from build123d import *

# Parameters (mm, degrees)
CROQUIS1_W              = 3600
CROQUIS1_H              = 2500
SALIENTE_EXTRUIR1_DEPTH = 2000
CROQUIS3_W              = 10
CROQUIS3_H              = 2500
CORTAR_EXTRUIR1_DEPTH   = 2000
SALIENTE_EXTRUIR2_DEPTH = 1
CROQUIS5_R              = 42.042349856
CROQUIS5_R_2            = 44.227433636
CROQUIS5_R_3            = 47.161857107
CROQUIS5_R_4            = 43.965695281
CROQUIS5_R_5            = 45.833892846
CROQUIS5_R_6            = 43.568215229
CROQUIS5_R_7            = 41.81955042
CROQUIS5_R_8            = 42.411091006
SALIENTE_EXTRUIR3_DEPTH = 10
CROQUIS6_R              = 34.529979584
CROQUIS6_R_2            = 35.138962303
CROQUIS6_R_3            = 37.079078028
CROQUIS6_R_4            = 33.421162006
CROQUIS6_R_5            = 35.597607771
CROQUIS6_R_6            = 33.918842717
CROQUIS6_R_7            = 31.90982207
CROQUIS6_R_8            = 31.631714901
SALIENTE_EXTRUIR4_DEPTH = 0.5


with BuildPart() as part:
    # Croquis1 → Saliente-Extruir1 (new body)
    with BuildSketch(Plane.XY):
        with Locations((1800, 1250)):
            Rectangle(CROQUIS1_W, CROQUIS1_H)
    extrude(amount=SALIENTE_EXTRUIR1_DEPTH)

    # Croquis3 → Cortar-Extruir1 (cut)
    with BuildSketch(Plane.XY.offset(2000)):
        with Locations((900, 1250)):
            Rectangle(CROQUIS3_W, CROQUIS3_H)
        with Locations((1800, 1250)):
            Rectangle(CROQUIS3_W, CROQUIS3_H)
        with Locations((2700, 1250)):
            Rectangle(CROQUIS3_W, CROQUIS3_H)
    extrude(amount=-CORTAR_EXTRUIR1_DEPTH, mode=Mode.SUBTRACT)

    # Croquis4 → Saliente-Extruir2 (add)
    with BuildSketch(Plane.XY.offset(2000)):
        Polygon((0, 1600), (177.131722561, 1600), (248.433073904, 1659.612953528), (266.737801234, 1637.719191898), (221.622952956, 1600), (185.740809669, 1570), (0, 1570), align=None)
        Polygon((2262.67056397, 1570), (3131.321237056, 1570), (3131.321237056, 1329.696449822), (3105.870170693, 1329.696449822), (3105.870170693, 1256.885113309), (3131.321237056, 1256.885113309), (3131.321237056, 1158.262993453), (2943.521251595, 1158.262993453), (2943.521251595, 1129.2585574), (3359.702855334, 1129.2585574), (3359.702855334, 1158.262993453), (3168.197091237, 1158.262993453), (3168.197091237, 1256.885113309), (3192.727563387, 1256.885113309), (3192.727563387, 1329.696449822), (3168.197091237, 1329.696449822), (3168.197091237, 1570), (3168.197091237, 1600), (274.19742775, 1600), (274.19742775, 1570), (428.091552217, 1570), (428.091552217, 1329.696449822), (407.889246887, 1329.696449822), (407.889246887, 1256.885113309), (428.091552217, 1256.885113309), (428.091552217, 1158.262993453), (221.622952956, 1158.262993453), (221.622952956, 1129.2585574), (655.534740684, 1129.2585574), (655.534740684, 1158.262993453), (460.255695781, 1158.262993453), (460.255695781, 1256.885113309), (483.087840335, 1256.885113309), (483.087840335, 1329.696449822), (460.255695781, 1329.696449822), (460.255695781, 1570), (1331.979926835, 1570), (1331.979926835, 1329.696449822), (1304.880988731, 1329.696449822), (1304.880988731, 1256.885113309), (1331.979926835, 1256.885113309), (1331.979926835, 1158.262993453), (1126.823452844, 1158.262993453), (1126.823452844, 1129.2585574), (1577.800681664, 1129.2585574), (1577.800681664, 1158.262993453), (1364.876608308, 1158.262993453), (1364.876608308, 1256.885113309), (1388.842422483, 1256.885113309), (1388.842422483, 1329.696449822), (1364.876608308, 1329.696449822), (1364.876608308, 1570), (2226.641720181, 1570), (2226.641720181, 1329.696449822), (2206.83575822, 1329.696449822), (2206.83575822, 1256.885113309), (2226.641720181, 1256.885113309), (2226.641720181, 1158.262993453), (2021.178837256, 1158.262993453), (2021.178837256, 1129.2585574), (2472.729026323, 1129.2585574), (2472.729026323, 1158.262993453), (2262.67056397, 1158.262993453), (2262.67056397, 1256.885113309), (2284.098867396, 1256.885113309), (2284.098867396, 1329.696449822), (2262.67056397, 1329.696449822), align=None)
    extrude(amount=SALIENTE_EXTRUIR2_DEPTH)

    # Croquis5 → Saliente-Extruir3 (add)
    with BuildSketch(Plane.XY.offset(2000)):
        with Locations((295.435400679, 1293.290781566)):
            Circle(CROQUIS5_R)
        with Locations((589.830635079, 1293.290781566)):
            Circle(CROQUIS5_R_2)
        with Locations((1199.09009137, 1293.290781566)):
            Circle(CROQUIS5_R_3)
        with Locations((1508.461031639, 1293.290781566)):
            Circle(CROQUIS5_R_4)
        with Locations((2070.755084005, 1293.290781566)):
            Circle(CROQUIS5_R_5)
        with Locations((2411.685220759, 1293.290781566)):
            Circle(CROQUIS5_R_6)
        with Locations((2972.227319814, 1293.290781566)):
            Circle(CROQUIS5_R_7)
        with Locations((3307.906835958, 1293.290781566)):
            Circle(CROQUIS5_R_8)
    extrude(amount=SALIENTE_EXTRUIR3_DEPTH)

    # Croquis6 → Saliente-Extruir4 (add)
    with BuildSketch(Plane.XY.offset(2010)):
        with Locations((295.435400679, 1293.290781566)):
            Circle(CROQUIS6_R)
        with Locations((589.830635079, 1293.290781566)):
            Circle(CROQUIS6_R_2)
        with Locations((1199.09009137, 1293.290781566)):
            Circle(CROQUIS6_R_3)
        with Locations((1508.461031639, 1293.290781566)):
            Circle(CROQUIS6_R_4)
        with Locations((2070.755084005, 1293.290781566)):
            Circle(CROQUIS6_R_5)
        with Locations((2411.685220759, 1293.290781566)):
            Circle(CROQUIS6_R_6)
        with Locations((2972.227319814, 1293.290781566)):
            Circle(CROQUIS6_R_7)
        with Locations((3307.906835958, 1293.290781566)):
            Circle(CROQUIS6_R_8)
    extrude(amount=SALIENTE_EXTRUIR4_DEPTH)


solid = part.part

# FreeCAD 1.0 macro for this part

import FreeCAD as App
import Part
import Sketcher
from FreeCAD import Vector
Q = App.Units.Quantity


def add_polygon(sketch, points):
    """Adds a closed chain of lines whose ends are joined by coincident constraints."""
    first, n = sketch.GeometryCount, len(points)
    for a, b in zip(points, points[1:] + points[:1]):
        sketch.addGeometry(Part.LineSegment(App.Vector(*a, 0), App.Vector(*b, 0)), False)
    for i in range(n):
        sketch.addConstraint(Sketcher.Constraint("Coincident", first + i, 2, first + (i + 1) % n, 1))

doc = App.newDocument("Part")
body = doc.addObject("PartDesign::Body", "Body")
body.AllowCompound = True

sketch1 = body.newObject("Sketcher::SketchObject", "Sketch")
sketch1.AttachmentSupport = (doc.getObject("XY_Plane"), [""])
sketch1.MapMode = "FlatFace"
add_polygon(sketch1, [(0, 2500), (0, 0), (3600, 0), (3600, 2500)])
sketch1.addConstraint(Sketcher.Constraint("Vertical", 0))
sketch1.addConstraint(Sketcher.Constraint("Horizontal", 1))
sketch1.addConstraint(Sketcher.Constraint("Vertical", 2))
sketch1.addConstraint(Sketcher.Constraint("Horizontal", 3))
sketch1.addConstraint(Sketcher.Constraint("Coincident", 0, 2, -1, 1))
sketch1.addConstraint(Sketcher.Constraint("DistanceX", 1, 1, 1, 2, Q("3600 mm")))
sketch1.addConstraint(Sketcher.Constraint("DistanceY", 0, 2, 0, 1, Q("2500 mm")))
pad1 = body.newObject("PartDesign::Pad", "Pad")
pad1.Profile = sketch1
pad1.Length = 2000

sketch2 = body.newObject("Sketcher::SketchObject", "Sketch001")
sketch2.AttachmentSupport = (doc.getObject("XY_Plane"), [""])
sketch2.MapMode = "FlatFace"
sketch2.AttachmentOffset = App.Placement(Vector(0, 0, 2000), App.Rotation())
add_polygon(sketch2, [(895, 2500), (895, 0), (905, 0), (905, 2500)])
add_polygon(sketch2, [(1795, 2500), (1795, 0), (1805, 0), (1805, 2500)])
add_polygon(sketch2, [(2695, 2500), (2695, 0), (2705, 0), (2705, 2500)])
sketch2.addConstraint(Sketcher.Constraint("Vertical", 0))
sketch2.addConstraint(Sketcher.Constraint("Horizontal", 1))
sketch2.addConstraint(Sketcher.Constraint("Vertical", 2))
sketch2.addConstraint(Sketcher.Constraint("Horizontal", 3))
sketch2.addConstraint(Sketcher.Constraint("Vertical", 4))
sketch2.addConstraint(Sketcher.Constraint("Horizontal", 5))
sketch2.addConstraint(Sketcher.Constraint("Vertical", 6))
sketch2.addConstraint(Sketcher.Constraint("Horizontal", 7))
sketch2.addConstraint(Sketcher.Constraint("Vertical", 8))
sketch2.addConstraint(Sketcher.Constraint("Horizontal", 9))
sketch2.addConstraint(Sketcher.Constraint("Vertical", 10))
sketch2.addConstraint(Sketcher.Constraint("Horizontal", 11))
sketch2.addConstraint(Sketcher.Constraint("PointOnObject", 0, 2, -1))
sketch2.addConstraint(Sketcher.Constraint("PointOnObject", 4, 2, -1))
sketch2.addConstraint(Sketcher.Constraint("PointOnObject", 8, 2, -1))
sketch2.addConstraint(Sketcher.Constraint("Horizontal", 3, 2, 6, 2))
sketch2.addConstraint(Sketcher.Constraint("Horizontal", 7, 2, 10, 2))
sketch2.addConstraint(Sketcher.Constraint("Equal", 3, 5))
sketch2.addConstraint(Sketcher.Constraint("Equal", 7, 9))
sketch2.addConstraint(Sketcher.Constraint("DistanceX", 1, 1, 1, 2, Q("10 mm")))
sketch2.addConstraint(Sketcher.Constraint("DistanceY", 0, 2, 0, 1, Q("2500 mm")))
sketch2.addConstraint(Sketcher.Constraint("DistanceX", -1, 1, 0, 2, Q("895 mm")))
sketch2.addConstraint(Sketcher.Constraint("DistanceX", -1, 1, 4, 2, Q("1795 mm")))
sketch2.addConstraint(Sketcher.Constraint("DistanceX", -1, 1, 8, 2, Q("2695 mm")))
pocket1 = body.newObject("PartDesign::Pocket", "Pocket")
pocket1.Profile = sketch2
pocket1.Length = 2000

sketch3 = body.newObject("Sketcher::SketchObject", "Sketch002")
sketch3.AttachmentSupport = (doc.getObject("XY_Plane"), [""])
sketch3.MapMode = "FlatFace"
sketch3.AttachmentOffset = App.Placement(Vector(0, 0, 2000), App.Rotation())
add_polygon(sketch3, [(177, 1600), (0, 1600), (0, 1570), (186, 1570), (222, 1600), (267, 1638), (248, 1660)])
add_polygon(sketch3, [(2263, 1570), (3131, 1570), (3131, 1330), (3106, 1330), (3106, 1257), (3131, 1257), (3131, 1158), (2944, 1158), (2944, 1129), (3360, 1129), (3360, 1158), (3168, 1158), (3168, 1257), (3193, 1257), (3193, 1330), (3168, 1330), (3168, 1600), (274, 1600), (274, 1570), (428, 1570), (428, 1330), (408, 1330), (408, 1257), (428, 1257), (428, 1158), (222, 1158), (222, 1129), (656, 1129), (656, 1158), (460, 1158), (460, 1257), (483, 1257), (483, 1330), (460, 1330), (460, 1570), (1332, 1570), (1332, 1330), (1305, 1330), (1305, 1257), (1332, 1257), (1332, 1158), (1127, 1158), (1127, 1129), (1578, 1129), (1578, 1158), (1365, 1158), (1365, 1257), (1389, 1257), (1389, 1330), (1365, 1330), (1365, 1570), (2227, 1570), (2227, 1330), (2207, 1330), (2207, 1257), (2227, 1257), (2227, 1158), (2021, 1158), (2021, 1129), (2473, 1129), (2473, 1158), (2263, 1158), (2263, 1257), (2284, 1257), (2284, 1330), (2263, 1330)])
sketch3.addConstraint(Sketcher.Constraint("Horizontal", 0))
sketch3.addConstraint(Sketcher.Constraint("Vertical", 1))
sketch3.addConstraint(Sketcher.Constraint("Horizontal", 2))
sketch3.addConstraint(Sketcher.Constraint("Horizontal", 7))
sketch3.addConstraint(Sketcher.Constraint("Vertical", 8))
sketch3.addConstraint(Sketcher.Constraint("Horizontal", 9))
sketch3.addConstraint(Sketcher.Constraint("Vertical", 10))
sketch3.addConstraint(Sketcher.Constraint("Horizontal", 11))
sketch3.addConstraint(Sketcher.Constraint("Vertical", 12))
sketch3.addConstraint(Sketcher.Constraint("Horizontal", 13))
sketch3.addConstraint(Sketcher.Constraint("Vertical", 14))
sketch3.addConstraint(Sketcher.Constraint("Horizontal", 15))
sketch3.addConstraint(Sketcher.Constraint("Vertical", 16))
sketch3.addConstraint(Sketcher.Constraint("Horizontal", 17))
sketch3.addConstraint(Sketcher.Constraint("Vertical", 18))
sketch3.addConstraint(Sketcher.Constraint("Horizontal", 19))
sketch3.addConstraint(Sketcher.Constraint("Vertical", 20))
sketch3.addConstraint(Sketcher.Constraint("Horizontal", 21))
sketch3.addConstraint(Sketcher.Constraint("Vertical", 22))
sketch3.addConstraint(Sketcher.Constraint("Horizontal", 23))
sketch3.addConstraint(Sketcher.Constraint("Vertical", 24))
sketch3.addConstraint(Sketcher.Constraint("Horizontal", 25))
sketch3.addConstraint(Sketcher.Constraint("Vertical", 26))
sketch3.addConstraint(Sketcher.Constraint("Horizontal", 27))
sketch3.addConstraint(Sketcher.Constraint("Vertical", 28))
sketch3.addConstraint(Sketcher.Constraint("Horizontal", 29))
sketch3.addConstraint(Sketcher.Constraint("Vertical", 30))
sketch3.addConstraint(Sketcher.Constraint("Horizontal", 31))
sketch3.addConstraint(Sketcher.Constraint("Vertical", 32))
sketch3.addConstraint(Sketcher.Constraint("Horizontal", 33))
sketch3.addConstraint(Sketcher.Constraint("Vertical", 34))
sketch3.addConstraint(Sketcher.Constraint("Horizontal", 35))
sketch3.addConstraint(Sketcher.Constraint("Vertical", 36))
sketch3.addConstraint(Sketcher.Constraint("Horizontal", 37))
sketch3.addConstraint(Sketcher.Constraint("Vertical", 38))
sketch3.addConstraint(Sketcher.Constraint("Horizontal", 39))
sketch3.addConstraint(Sketcher.Constraint("Vertical", 40))
sketch3.addConstraint(Sketcher.Constraint("Horizontal", 41))
sketch3.addConstraint(Sketcher.Constraint("Vertical", 42))
sketch3.addConstraint(Sketcher.Constraint("Horizontal", 43))
sketch3.addConstraint(Sketcher.Constraint("Vertical", 44))
sketch3.addConstraint(Sketcher.Constraint("Horizontal", 45))
sketch3.addConstraint(Sketcher.Constraint("Vertical", 46))
sketch3.addConstraint(Sketcher.Constraint("Horizontal", 47))
sketch3.addConstraint(Sketcher.Constraint("Vertical", 48))
sketch3.addConstraint(Sketcher.Constraint("Horizontal", 49))
sketch3.addConstraint(Sketcher.Constraint("Vertical", 50))
sketch3.addConstraint(Sketcher.Constraint("Horizontal", 51))
sketch3.addConstraint(Sketcher.Constraint("Vertical", 52))
sketch3.addConstraint(Sketcher.Constraint("Horizontal", 53))
sketch3.addConstraint(Sketcher.Constraint("Vertical", 54))
sketch3.addConstraint(Sketcher.Constraint("Horizontal", 55))
sketch3.addConstraint(Sketcher.Constraint("Vertical", 56))
sketch3.addConstraint(Sketcher.Constraint("Horizontal", 57))
sketch3.addConstraint(Sketcher.Constraint("Vertical", 58))
sketch3.addConstraint(Sketcher.Constraint("Horizontal", 59))
sketch3.addConstraint(Sketcher.Constraint("Vertical", 60))
sketch3.addConstraint(Sketcher.Constraint("Horizontal", 61))
sketch3.addConstraint(Sketcher.Constraint("Vertical", 62))
sketch3.addConstraint(Sketcher.Constraint("Horizontal", 63))
sketch3.addConstraint(Sketcher.Constraint("Vertical", 64))
sketch3.addConstraint(Sketcher.Constraint("Horizontal", 65))
sketch3.addConstraint(Sketcher.Constraint("Vertical", 66))
sketch3.addConstraint(Sketcher.Constraint("Horizontal", 67))
sketch3.addConstraint(Sketcher.Constraint("Vertical", 68))
sketch3.addConstraint(Sketcher.Constraint("Horizontal", 69))
sketch3.addConstraint(Sketcher.Constraint("Vertical", 70))
sketch3.addConstraint(Sketcher.Constraint("Horizontal", 71))
sketch3.addConstraint(Sketcher.Constraint("Vertical", 72))
sketch3.addConstraint(Sketcher.Constraint("PointOnObject", 0, 2, -2))
sketch3.addConstraint(Sketcher.Constraint("Parallel", 3, 4))
sketch3.addConstraint(Sketcher.Constraint("Perpendicular", 4, 5))
sketch3.addConstraint(Sketcher.Constraint("Perpendicular", 5, 6))
sketch3.addConstraint(Sketcher.Constraint("Horizontal", 0, 2, 3, 2))
sketch3.addConstraint(Sketcher.Constraint("Horizontal", 2, 2, 7, 2))
sketch3.addConstraint(Sketcher.Constraint("Horizontal", 13, 2, 16, 2))
sketch3.addConstraint(Sketcher.Constraint("Horizontal", 11, 2, 18, 2))
sketch3.addConstraint(Sketcher.Constraint("Horizontal", 9, 2, 20, 2))
sketch3.addConstraint(Sketcher.Constraint("Horizontal", 6, 2, 22, 2))
sketch3.addConstraint(Sketcher.Constraint("Horizontal", 7, 2, 24, 2))
sketch3.addConstraint(Sketcher.Constraint("Horizontal", 21, 2, 26, 2))
sketch3.addConstraint(Sketcher.Constraint("Horizontal", 19, 2, 28, 2))
sketch3.addConstraint(Sketcher.Constraint("Horizontal", 17, 2, 30, 2))
sketch3.addConstraint(Sketcher.Constraint("Horizontal", 15, 2, 32, 2))
sketch3.addConstraint(Sketcher.Constraint("Horizontal", 31, 2, 34, 2))
sketch3.addConstraint(Sketcher.Constraint("Horizontal", 29, 2, 36, 2))
sketch3.addConstraint(Sketcher.Constraint("Horizontal", 27, 2, 38, 2))
sketch3.addConstraint(Sketcher.Constraint("Horizontal", 25, 2, 40, 2))
sketch3.addConstraint(Sketcher.Constraint("Horizontal", 39, 2, 42, 2))
sketch3.addConstraint(Sketcher.Constraint("Horizontal", 37, 2, 44, 2))
sketch3.addConstraint(Sketcher.Constraint("Horizontal", 35, 2, 46, 2))
sketch3.addConstraint(Sketcher.Constraint("Horizontal", 33, 2, 48, 2))
sketch3.addConstraint(Sketcher.Constraint("Horizontal", 47, 2, 50, 2))
sketch3.addConstraint(Sketcher.Constraint("Horizontal", 45, 2, 52, 2))
sketch3.addConstraint(Sketcher.Constraint("Horizontal", 43, 2, 54, 2))
sketch3.addConstraint(Sketcher.Constraint("Horizontal", 41, 2, 56, 2))
sketch3.addConstraint(Sketcher.Constraint("Horizontal", 55, 2, 58, 2))
sketch3.addConstraint(Sketcher.Constraint("Horizontal", 53, 2, 60, 2))
sketch3.addConstraint(Sketcher.Constraint("Horizontal", 51, 2, 62, 2))
sketch3.addConstraint(Sketcher.Constraint("Horizontal", 49, 2, 64, 2))
sketch3.addConstraint(Sketcher.Constraint("Horizontal", 63, 2, 66, 2))
sketch3.addConstraint(Sketcher.Constraint("Horizontal", 61, 2, 68, 2))
sketch3.addConstraint(Sketcher.Constraint("Horizontal", 59, 2, 70, 2))
sketch3.addConstraint(Sketcher.Constraint("Vertical", 8, 2, 11, 2))
sketch3.addConstraint(Sketcher.Constraint("Vertical", 18, 2, 21, 2))
sketch3.addConstraint(Sketcher.Constraint("Vertical", 26, 2, 29, 2))
sketch3.addConstraint(Sketcher.Constraint("Vertical", 3, 2, 31, 2))
sketch3.addConstraint(Sketcher.Constraint("Vertical", 36, 2, 39, 2))
sketch3.addConstraint(Sketcher.Constraint("Vertical", 42, 2, 45, 2))
sketch3.addConstraint(Sketcher.Constraint("Vertical", 52, 2, 55, 2))
sketch3.addConstraint(Sketcher.Constraint("Vertical", 58, 2, 61, 2))
sketch3.addConstraint(Sketcher.Constraint("Vertical", 68, 2, 71, 2))
sketch3.addConstraint(Sketcher.Constraint("DistanceY", 1, 2, 1, 1, Q("30 mm")))
sketch3.addConstraint(Sketcher.Constraint("DistanceY", -1, 1, 0, 2, Q("1600 mm")))
sketch3.addConstraint(Sketcher.Constraint("DistanceX", 31, 2, 31, 1, Q("206.468599 mm")))
sketch3.addConstraint(Sketcher.Constraint("Distance", 4, Q("58.805501 mm")))
sketch3.addConstraint(Sketcher.Constraint("DistanceX", 2, 1, 2, 2, Q("185.74081 mm")))
sketch3.addConstraint(Sketcher.Constraint("DistanceX", 41, 1, 41, 2, Q("871.724231 mm")))
sketch3.addConstraint(Sketcher.Constraint("DistanceX", 43, 2, 43, 1, Q("27.098938 mm")))
sketch3.addConstraint(Sketcher.Constraint("DistanceX", 49, 1, 49, 2, Q("450.977229 mm")))
sketch3.addConstraint(Sketcher.Constraint("DistanceX", 57, 1, 57, 2, Q("861.765112 mm")))
sketch3.addConstraint(Sketcher.Constraint("DistanceX", 59, 2, 59, 1, Q("19.805962 mm")))
sketch3.addConstraint(Sketcher.Constraint("DistanceX", 65, 1, 65, 2, Q("451.550189 mm")))
sketch3.addConstraint(Sketcher.Constraint("DistanceY", 8, 2, 8, 1, Q("240.30355 mm")))
sketch3.addConstraint(Sketcher.Constraint("DistanceY", 12, 2, 12, 1, Q("98.62212 mm")))
sketch3.addConstraint(Sketcher.Constraint("DistanceX", -1, 1, 4, 2, Q("266.737801 mm")))
sketch3.addConstraint(Sketcher.Constraint("Distance", 5, Q("28.537692 mm")))
sketch3.addConstraint(Sketcher.Constraint("DistanceX", 7, 1, 7, 2, Q("868.650673 mm")))
sketch3.addConstraint(Sketcher.Constraint("DistanceX", 9, 2, 9, 1, Q("25.451066 mm")))
sketch3.addConstraint(Sketcher.Constraint("DistanceX", 13, 2, 13, 1, Q("187.799985 mm")))
sketch3.addConstraint(Sketcher.Constraint("DistanceX", 15, 1, 15, 2, Q("416.181604 mm")))
sketch3.addConstraint(Sketcher.Constraint("DistanceX", 17, 2, 17, 1, Q("191.505764 mm")))
sketch3.addConstraint(Sketcher.Constraint("DistanceX", 19, 1, 19, 2, Q("24.530472 mm")))
sketch3.addConstraint(Sketcher.Constraint("DistanceX", 23, 2, 23, 1, Q("2893.999663 mm")))
sketch3.addConstraint(Sketcher.Constraint("DistanceX", 25, 1, 25, 2, Q("153.894124 mm")))
sketch3.addConstraint(Sketcher.Constraint("DistanceX", 27, 2, 27, 1, Q("20.202305 mm")))
sketch3.addConstraint(Sketcher.Constraint("DistanceX", 33, 1, 33, 2, Q("433.911788 mm")))
sketch3.addConstraint(Sketcher.Constraint("DistanceX", 35, 2, 35, 1, Q("195.279045 mm")))
sketch3.addConstraint(Sketcher.Constraint("DistanceX", 37, 1, 37, 2, Q("22.832145 mm")))
sketch3.addConstraint(Sketcher.Constraint("DistanceX", 47, 2, 47, 1, Q("205.156474 mm")))
sketch3.addConstraint(Sketcher.Constraint("DistanceX", 51, 2, 51, 1, Q("212.924073 mm")))
sketch3.addConstraint(Sketcher.Constraint("DistanceX", 53, 1, 53, 2, Q("23.965814 mm")))
sketch3.addConstraint(Sketcher.Constraint("DistanceX", 63, 2, 63, 1, Q("205.462883 mm")))
sketch3.addConstraint(Sketcher.Constraint("DistanceX", 69, 1, 69, 2, Q("21.428303 mm")))
sketch3.addConstraint(Sketcher.Constraint("DistanceY", 10, 2, 10, 1, Q("72.811337 mm")))
sketch3.addConstraint(Sketcher.Constraint("DistanceY", 14, 2, 14, 1, Q("29.004436 mm")))
pad2 = body.newObject("PartDesign::Pad", "Pad001")
pad2.Profile = sketch3
pad2.Length = 1

sketch4 = body.newObject("Sketcher::SketchObject", "Sketch003")
sketch4.AttachmentSupport = (doc.getObject("XY_Plane"), [""])
sketch4.MapMode = "FlatFace"
sketch4.AttachmentOffset = App.Placement(Vector(0, 0, 2000), App.Rotation())
sketch4.addGeometry(Part.Circle(Vector(295, 1293, 0), Vector(0, 0, 1), 42), False)
sketch4.addGeometry(Part.Circle(Vector(590, 1293, 0), Vector(0, 0, 1), 44), False)
sketch4.addGeometry(Part.Circle(Vector(1199, 1293, 0), Vector(0, 0, 1), 47), False)
sketch4.addGeometry(Part.Circle(Vector(1508, 1293, 0), Vector(0, 0, 1), 44), False)
sketch4.addGeometry(Part.Circle(Vector(2071, 1293, 0), Vector(0, 0, 1), 46), False)
sketch4.addGeometry(Part.Circle(Vector(2412, 1293, 0), Vector(0, 0, 1), 44), False)
sketch4.addGeometry(Part.Circle(Vector(2972, 1293, 0), Vector(0, 0, 1), 42), False)
sketch4.addGeometry(Part.Circle(Vector(3308, 1293, 0), Vector(0, 0, 1), 42), False)
sketch4.addConstraint(Sketcher.Constraint("Horizontal", 0, 3, 1, 3))
sketch4.addConstraint(Sketcher.Constraint("Horizontal", 1, 3, 2, 3))
sketch4.addConstraint(Sketcher.Constraint("Horizontal", 2, 3, 3, 3))
sketch4.addConstraint(Sketcher.Constraint("Horizontal", 3, 3, 4, 3))
sketch4.addConstraint(Sketcher.Constraint("Horizontal", 4, 3, 5, 3))
sketch4.addConstraint(Sketcher.Constraint("Horizontal", 5, 3, 6, 3))
sketch4.addConstraint(Sketcher.Constraint("Horizontal", 6, 3, 7, 3))
sketch4.addConstraint(Sketcher.Constraint("Diameter", 0, Q("84.0847 mm")))
sketch4.addConstraint(Sketcher.Constraint("Diameter", 6, Q("83.639101 mm")))
sketch4.addConstraint(Sketcher.Constraint("Diameter", 3, Q("87.931391 mm")))
sketch4.addConstraint(Sketcher.Constraint("Diameter", 5, Q("87.13643 mm")))
sketch4.addConstraint(Sketcher.Constraint("Diameter", 1, Q("88.454867 mm")))
sketch4.addConstraint(Sketcher.Constraint("Diameter", 2, Q("94.323714 mm")))
sketch4.addConstraint(Sketcher.Constraint("Diameter", 4, Q("91.667786 mm")))
sketch4.addConstraint(Sketcher.Constraint("Diameter", 7, Q("84.822182 mm")))
sketch4.addConstraint(Sketcher.Constraint("DistanceX", -1, 1, 0, 3, Q("295.435401 mm")))
sketch4.addConstraint(Sketcher.Constraint("DistanceX", 5, 3, 6, 3, Q("560.542099 mm")))
sketch4.addConstraint(Sketcher.Constraint("DistanceY", -1, 1, 0, 3, Q("1293.290782 mm")))
sketch4.addConstraint(Sketcher.Constraint("DistanceX", -1, 1, 2, 3, Q("1199.090091 mm")))
sketch4.addConstraint(Sketcher.Constraint("DistanceX", -1, 1, 3, 3, Q("1508.461032 mm")))
sketch4.addConstraint(Sketcher.Constraint("DistanceX", -1, 1, 5, 3, Q("2411.685221 mm")))
sketch4.addConstraint(Sketcher.Constraint("DistanceX", 1, 3, 4, 3, Q("1480.924449 mm")))
sketch4.addConstraint(Sketcher.Constraint("DistanceX", 4, 3, 7, 3, Q("1237.151752 mm")))
sketch4.addConstraint(Sketcher.Constraint("DistanceX", -1, 1, 1, 3, Q("589.830635 mm")))
pad3 = body.newObject("PartDesign::Pad", "Pad002")
pad3.Profile = sketch4
pad3.Length = 10

sketch5 = body.newObject("Sketcher::SketchObject", "Sketch004")
sketch5.AttachmentSupport = (doc.getObject("XY_Plane"), [""])
sketch5.MapMode = "FlatFace"
sketch5.AttachmentOffset = App.Placement(Vector(0, 0, 2010), App.Rotation())
sketch5.addGeometry(Part.Circle(Vector(295, 1293, 0), Vector(0, 0, 1), 35), False)
sketch5.addGeometry(Part.Circle(Vector(590, 1293, 0), Vector(0, 0, 1), 35), False)
sketch5.addGeometry(Part.Circle(Vector(1199, 1293, 0), Vector(0, 0, 1), 37), False)
sketch5.addGeometry(Part.Circle(Vector(1508, 1293, 0), Vector(0, 0, 1), 33), False)
sketch5.addGeometry(Part.Circle(Vector(2071, 1293, 0), Vector(0, 0, 1), 36), False)
sketch5.addGeometry(Part.Circle(Vector(2412, 1293, 0), Vector(0, 0, 1), 34), False)
sketch5.addGeometry(Part.Circle(Vector(2972, 1293, 0), Vector(0, 0, 1), 32), False)
sketch5.addGeometry(Part.Circle(Vector(3308, 1293, 0), Vector(0, 0, 1), 32), False)
sketch5.addConstraint(Sketcher.Constraint("Horizontal", 0, 3, 1, 3))
sketch5.addConstraint(Sketcher.Constraint("Horizontal", 1, 3, 2, 3))
sketch5.addConstraint(Sketcher.Constraint("Horizontal", 2, 3, 3, 3))
sketch5.addConstraint(Sketcher.Constraint("Horizontal", 3, 3, 4, 3))
sketch5.addConstraint(Sketcher.Constraint("Horizontal", 4, 3, 5, 3))
sketch5.addConstraint(Sketcher.Constraint("Horizontal", 5, 3, 6, 3))
sketch5.addConstraint(Sketcher.Constraint("Horizontal", 6, 3, 7, 3))
sketch5.addConstraint(Sketcher.Constraint("Diameter", 0, Q("69.059959 mm")))
sketch5.addConstraint(Sketcher.Constraint("Diameter", 7, Q("63.26343 mm")))
sketch5.addConstraint(Sketcher.Constraint("Diameter", 1, Q("70.277925 mm")))
sketch5.addConstraint(Sketcher.Constraint("Diameter", 2, Q("74.158156 mm")))
sketch5.addConstraint(Sketcher.Constraint("Diameter", 3, Q("66.842324 mm")))
sketch5.addConstraint(Sketcher.Constraint("Diameter", 4, Q("71.195216 mm")))
sketch5.addConstraint(Sketcher.Constraint("Diameter", 5, Q("67.837685 mm")))
sketch5.addConstraint(Sketcher.Constraint("Diameter", 6, Q("63.819644 mm")))
sketch5.addConstraint(Sketcher.Constraint("DistanceX", -1, 1, 0, 3, Q("295.435401 mm")))
sketch5.addConstraint(Sketcher.Constraint("DistanceX", 5, 3, 6, 3, Q("560.542099 mm")))
sketch5.addConstraint(Sketcher.Constraint("DistanceY", -1, 1, 0, 3, Q("1293.290782 mm")))
sketch5.addConstraint(Sketcher.Constraint("DistanceX", -1, 1, 2, 3, Q("1199.090091 mm")))
sketch5.addConstraint(Sketcher.Constraint("DistanceX", -1, 1, 3, 3, Q("1508.461032 mm")))
sketch5.addConstraint(Sketcher.Constraint("DistanceX", -1, 1, 5, 3, Q("2411.685221 mm")))
sketch5.addConstraint(Sketcher.Constraint("DistanceX", 1, 3, 4, 3, Q("1480.924449 mm")))
sketch5.addConstraint(Sketcher.Constraint("DistanceX", 4, 3, 7, 3, Q("1237.151752 mm")))
sketch5.addConstraint(Sketcher.Constraint("DistanceX", -1, 1, 1, 3, Q("589.830635 mm")))
pad4 = body.newObject("PartDesign::Pad", "Pad003")
pad4.Profile = sketch5
pad4.Length = 0.5

doc.recompute()
